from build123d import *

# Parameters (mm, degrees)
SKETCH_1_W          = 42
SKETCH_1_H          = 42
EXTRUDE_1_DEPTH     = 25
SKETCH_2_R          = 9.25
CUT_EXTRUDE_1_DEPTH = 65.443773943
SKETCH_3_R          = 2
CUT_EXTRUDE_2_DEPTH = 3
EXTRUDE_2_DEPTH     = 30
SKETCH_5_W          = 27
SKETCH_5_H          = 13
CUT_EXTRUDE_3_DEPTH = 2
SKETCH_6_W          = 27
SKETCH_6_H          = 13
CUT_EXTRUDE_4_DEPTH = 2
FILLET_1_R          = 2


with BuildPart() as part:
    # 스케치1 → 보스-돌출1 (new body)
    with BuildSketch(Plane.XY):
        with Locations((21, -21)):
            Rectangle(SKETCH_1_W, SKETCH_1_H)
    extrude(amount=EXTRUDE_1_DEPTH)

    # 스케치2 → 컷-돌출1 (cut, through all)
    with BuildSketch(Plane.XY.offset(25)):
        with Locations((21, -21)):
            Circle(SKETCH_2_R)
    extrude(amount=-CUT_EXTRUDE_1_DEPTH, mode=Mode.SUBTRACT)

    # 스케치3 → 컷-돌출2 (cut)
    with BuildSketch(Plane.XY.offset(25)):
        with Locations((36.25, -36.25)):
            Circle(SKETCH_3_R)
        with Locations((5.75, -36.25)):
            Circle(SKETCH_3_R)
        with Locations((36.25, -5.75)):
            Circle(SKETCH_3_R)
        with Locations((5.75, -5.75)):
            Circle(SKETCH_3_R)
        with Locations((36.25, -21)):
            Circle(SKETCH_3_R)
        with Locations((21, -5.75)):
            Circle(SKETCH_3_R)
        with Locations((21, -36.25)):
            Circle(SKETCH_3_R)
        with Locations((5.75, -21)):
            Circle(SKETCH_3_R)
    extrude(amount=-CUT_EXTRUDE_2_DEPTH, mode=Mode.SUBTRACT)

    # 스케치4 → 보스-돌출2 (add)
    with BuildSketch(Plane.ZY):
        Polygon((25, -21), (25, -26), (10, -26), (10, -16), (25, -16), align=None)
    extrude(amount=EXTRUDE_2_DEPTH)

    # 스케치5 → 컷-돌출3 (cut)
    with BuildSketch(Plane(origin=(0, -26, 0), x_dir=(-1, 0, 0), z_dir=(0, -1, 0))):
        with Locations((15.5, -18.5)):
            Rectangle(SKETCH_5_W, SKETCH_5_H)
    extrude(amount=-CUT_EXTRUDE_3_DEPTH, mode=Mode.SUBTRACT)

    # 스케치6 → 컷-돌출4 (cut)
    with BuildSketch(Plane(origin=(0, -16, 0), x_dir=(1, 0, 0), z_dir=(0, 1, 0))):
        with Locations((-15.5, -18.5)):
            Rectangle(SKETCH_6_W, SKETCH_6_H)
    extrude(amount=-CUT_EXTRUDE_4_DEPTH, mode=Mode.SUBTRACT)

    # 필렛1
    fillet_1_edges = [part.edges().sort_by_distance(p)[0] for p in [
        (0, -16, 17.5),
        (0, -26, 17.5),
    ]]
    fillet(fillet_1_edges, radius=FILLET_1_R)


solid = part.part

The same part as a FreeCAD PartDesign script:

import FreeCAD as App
import Part
import Sketcher

V = App.Vector


def edges_at(feature, points):
    """Names of the edges that pass closest to the given points."""
    edges = feature.Shape.Edges
    near = lambda p: min(range(len(edges)), key=lambda i: edges[i].distToShape(Part.Vertex(*p))[0])
    return sorted({f"Edge{near(p) + 1}" for p in points})


def add_polygon(sketch, points):
    """Adds a closed chain of lines whose ends are joined by coincident constraints."""
    first, n = sketch.GeometryCount, len(points)
    for a, b in zip(points, points[1:] + points[:1]):
        sketch.addGeometry(Part.LineSegment(App.Vector(*a, 0), App.Vector(*b, 0)), False)
    for i in range(n):
        sketch.addConstraint(Sketcher.Constraint("Coincident", first + i, 2, first + (i + 1) % n, 1))

doc = App.newDocument("Part")
body = doc.addObject("PartDesign::Body", "Body")

# Sketch on XY plane
sketch1 = doc.addObject("Sketcher::SketchObject", "Sketch")
body.addObject(sketch1)
sketch1.AttachmentSupport = (doc.XY_Plane, [""])
sketch1.MapMode = "FlatFace"
add_polygon(sketch1, [(0, 0), (0, -42), (42, -42), (42, 0)])  # lines 0-3
sketch1.addConstraint([
    Sketcher.Constraint("Vertical", 0),
    Sketcher.Constraint("Horizontal", 1),
    Sketcher.Constraint("Vertical", 2),
    Sketcher.Constraint("Horizontal", 3),
    Sketcher.Constraint("Coincident", 3, 2, -1, 1),
    Sketcher.Constraint("Equal", 3, 0),
    Sketcher.Constraint("DistanceX", 1, 1, 1, 2, 42.0),
])
pad1 = doc.addObject("PartDesign::Pad", "Pad")
body.addObject(pad1)
pad1.Profile = sketch1
pad1.Length = 25

# Sketch on XY plane
sketch2 = doc.addObject("Sketcher::SketchObject", "Sketch001")
body.addObject(sketch2)
sketch2.AttachmentSupport = (doc.XY_Plane, [""])
sketch2.MapMode = "FlatFace"
sketch2.AttachmentOffset = App.Placement(V(0, 0, 25), App.Rotation())
sketch2.addGeometry(Part.Circle(V(21, -21, 0), V(0, 0, 1), 9), False)
sketch2.addConstraint([
    Sketcher.Constraint("Diameter", 0, 18.5),
    Sketcher.Constraint("DistanceX", -1, 1, 0, 3, 21.0),
    Sketcher.Constraint("DistanceY", 0, 3, -1, 1, 21.0),
])
pocket1 = doc.addObject("PartDesign::Pocket", "Pocket")
body.addObject(pocket1)
pocket1.Profile = sketch2
pocket1.Type = "ThroughAll"

# Sketch on XY plane
sketch3 = doc.addObject("Sketcher::SketchObject", "Sketch002")
body.addObject(sketch3)
sketch3.AttachmentSupport = (doc.XY_Plane, [""])
sketch3.MapMode = "FlatFace"
sketch3.AttachmentOffset = App.Placement(V(0, 0, 25), App.Rotation())
sketch3.addGeometry([
    Part.Circle(V(36.2, -36.2, 0), V(0, 0, 1), 2),  # 0
    Part.Circle(V(5.8, -36.2, 0), V(0, 0, 1), 2),  # 1
    Part.Circle(V(36.2, -5.8, 0), V(0, 0, 1), 2),  # 2
    Part.Circle(V(5.8, -5.8, 0), V(0, 0, 1), 2),  # 3
    Part.Circle(V(36.2, -21, 0), V(0, 0, 1), 2),  # 4
    Part.Circle(V(21, -5.8, 0), V(0, 0, 1), 2),  # 5
    Part.Circle(V(21, -36.2, 0), V(0, 0, 1), 2),  # 6
    Part.Circle(V(5.8, -21, 0), V(0, 0, 1), 2),  # 7
], False)
sketch3.addConstraint([
    Sketcher.Constraint("Equal", 0, 1),
    Sketcher.Constraint("Equal", 1, 2),
    Sketcher.Constraint("Equal", 2, 3),
    Sketcher.Constraint("Equal", 3, 4),
    Sketcher.Constraint("Equal", 4, 5),
    Sketcher.Constraint("Equal", 5, 6),
    Sketcher.Constraint("Equal", 6, 7),
    Sketcher.Constraint("Horizontal", 0, 3, 1, 3),
    Sketcher.Constraint("Horizontal", 2, 3, 3, 3),
    Sketcher.Constraint("Horizontal", 3, 3, 5, 3),
    Sketcher.Constraint("Horizontal", 1, 3, 6, 3),
    Sketcher.Constraint("Horizontal", 4, 3, 7, 3),
    Sketcher.Constraint("Vertical", 0, 3, 2, 3),
    Sketcher.Constraint("Vertical", 1, 3, 3, 3),
    Sketcher.Constraint("Vertical", 2, 3, 4, 3),
    Sketcher.Constraint("Vertical", 5, 3, 6, 3),
    Sketcher.Constraint("Vertical", 3, 3, 7, 3),
    Sketcher.Constraint("Diameter", 0, 4.0),
    Sketcher.Constraint("DistanceY", 4, 3, -1, 1, 21.0),
    Sketcher.Constraint("DistanceX", -1, 1, 5, 3, 21.0),
    Sketcher.Constraint("DistanceX", 1, 3, 0, 3, 30.5),
    Sketcher.Constraint("DistanceY", 0, 3, 2, 3, 30.5),
    Sketcher.Constraint("DistanceX", -1, 1, 0, 3, 36.25),
    Sketcher.Constraint("DistanceY", 0, 3, -1, 1, 36.25),
])
pocket2 = doc.addObject("PartDesign::Pocket", "Pocket001")
body.addObject(pocket2)
pocket2.Profile = sketch3
pocket2.Length = 3

# Sketch on YZ plane
sketch4 = doc.addObject("Sketcher::SketchObject", "Sketch003")
body.addObject(sketch4)
sketch4.AttachmentSupport = (doc.YZ_Plane, [""])
sketch4.MapMode = "FlatFace"
add_polygon(sketch4, [(-26, 25), (-16, 25), (-16, 10), (-26, 10)])  # lines 0-3
sketch4.addConstraint([
    Sketcher.Constraint("Horizontal", 0),
    Sketcher.Constraint("Vertical", 1),
    Sketcher.Constraint("Horizontal", 2),
    Sketcher.Constraint("Vertical", 3),
    Sketcher.Constraint("DistanceX", 0, 1, 0, 2, 10.0),
    Sketcher.Constraint("DistanceY", 1, 2, 1, 1, 15.0),
    Sketcher.Constraint("DistanceX", 0, 2, -1, 1, 16.0),
    Sketcher.Constraint("DistanceY", -1, 1, 0, 2, 25.0),
])
pad2 = doc.addObject("PartDesign::Pad", "Pad001")
body.addObject(pad2)
pad2.Profile = sketch4
pad2.Length = 30
pad2.Reversed = True

# Sketch on XZ plane
sketch5 = doc.addObject("Sketcher::SketchObject", "Sketch004")
body.addObject(sketch5)
sketch5.AttachmentSupport = (doc.XZ_Plane, [""])
sketch5.MapMode = "FlatFace"
sketch5.AttachmentOffset = App.Placement(V(0, 0, 26), App.Rotation())
add_polygon(sketch5, [(-2, 12), (-2, 25), (-29, 25), (-29, 12)])  # lines 0-3
sketch5.addConstraint([
    Sketcher.Constraint("Vertical", 0),
    Sketcher.Constraint("Horizontal", 1),
    Sketcher.Constraint("Vertical", 2),
    Sketcher.Constraint("Horizontal", 3),
    Sketcher.Constraint("DistanceX", 1, 2, 1, 1, 27.0),
    Sketcher.Constraint("DistanceY", 0, 1, 0, 2, 13.0),
    Sketcher.Constraint("DistanceX", 0, 2, -1, 1, 2.0),
    Sketcher.Constraint("DistanceY", -1, 1, 0, 2, 25.0),
])
pocket3 = doc.addObject("PartDesign::Pocket", "Pocket002")
body.addObject(pocket3)
pocket3.Profile = sketch5
pocket3.Length = 2

# Sketch on XZ plane
sketch6 = doc.addObject("Sketcher::SketchObject", "Sketch005")
body.addObject(sketch6)
sketch6.AttachmentSupport = (doc.XZ_Plane, [""])
sketch6.MapMode = "FlatFace"
sketch6.AttachmentOffset = App.Placement(V(0, 0, 16), App.Rotation())
add_polygon(sketch6, [(-29, 12), (-29, 25), (-2, 25), (-2, 12)])  # lines 0-3
sketch6.addConstraint([
    Sketcher.Constraint("Vertical", 0),
    Sketcher.Constraint("Horizontal", 1),
    Sketcher.Constraint("Vertical", 2),
    Sketcher.Constraint("Horizontal", 3),
    Sketcher.Constraint("DistanceX", 1, 1, 1, 2, 27.0),
    Sketcher.Constraint("DistanceY", 0, 1, 0, 2, 13.0),
    Sketcher.Constraint("DistanceX", 0, 2, -1, 1, 29.0),
    Sketcher.Constraint("DistanceY", -1, 1, 0, 2, 25.0),
])
pocket4 = doc.addObject("PartDesign::Pocket", "Pocket003")
body.addObject(pocket4)
pocket4.Profile = sketch6
pocket4.Length = 2
pocket4.Reversed = True
doc.recompute()

fillet = doc.addObject("PartDesign::Fillet", "Fillet")
body.addObject(fillet)
fillet.Base = (pocket4, edges_at(pocket4, [(0, -16, 17.5), (0, -26, 17.5)]))
fillet.Radius = 2

doc.recompute()
